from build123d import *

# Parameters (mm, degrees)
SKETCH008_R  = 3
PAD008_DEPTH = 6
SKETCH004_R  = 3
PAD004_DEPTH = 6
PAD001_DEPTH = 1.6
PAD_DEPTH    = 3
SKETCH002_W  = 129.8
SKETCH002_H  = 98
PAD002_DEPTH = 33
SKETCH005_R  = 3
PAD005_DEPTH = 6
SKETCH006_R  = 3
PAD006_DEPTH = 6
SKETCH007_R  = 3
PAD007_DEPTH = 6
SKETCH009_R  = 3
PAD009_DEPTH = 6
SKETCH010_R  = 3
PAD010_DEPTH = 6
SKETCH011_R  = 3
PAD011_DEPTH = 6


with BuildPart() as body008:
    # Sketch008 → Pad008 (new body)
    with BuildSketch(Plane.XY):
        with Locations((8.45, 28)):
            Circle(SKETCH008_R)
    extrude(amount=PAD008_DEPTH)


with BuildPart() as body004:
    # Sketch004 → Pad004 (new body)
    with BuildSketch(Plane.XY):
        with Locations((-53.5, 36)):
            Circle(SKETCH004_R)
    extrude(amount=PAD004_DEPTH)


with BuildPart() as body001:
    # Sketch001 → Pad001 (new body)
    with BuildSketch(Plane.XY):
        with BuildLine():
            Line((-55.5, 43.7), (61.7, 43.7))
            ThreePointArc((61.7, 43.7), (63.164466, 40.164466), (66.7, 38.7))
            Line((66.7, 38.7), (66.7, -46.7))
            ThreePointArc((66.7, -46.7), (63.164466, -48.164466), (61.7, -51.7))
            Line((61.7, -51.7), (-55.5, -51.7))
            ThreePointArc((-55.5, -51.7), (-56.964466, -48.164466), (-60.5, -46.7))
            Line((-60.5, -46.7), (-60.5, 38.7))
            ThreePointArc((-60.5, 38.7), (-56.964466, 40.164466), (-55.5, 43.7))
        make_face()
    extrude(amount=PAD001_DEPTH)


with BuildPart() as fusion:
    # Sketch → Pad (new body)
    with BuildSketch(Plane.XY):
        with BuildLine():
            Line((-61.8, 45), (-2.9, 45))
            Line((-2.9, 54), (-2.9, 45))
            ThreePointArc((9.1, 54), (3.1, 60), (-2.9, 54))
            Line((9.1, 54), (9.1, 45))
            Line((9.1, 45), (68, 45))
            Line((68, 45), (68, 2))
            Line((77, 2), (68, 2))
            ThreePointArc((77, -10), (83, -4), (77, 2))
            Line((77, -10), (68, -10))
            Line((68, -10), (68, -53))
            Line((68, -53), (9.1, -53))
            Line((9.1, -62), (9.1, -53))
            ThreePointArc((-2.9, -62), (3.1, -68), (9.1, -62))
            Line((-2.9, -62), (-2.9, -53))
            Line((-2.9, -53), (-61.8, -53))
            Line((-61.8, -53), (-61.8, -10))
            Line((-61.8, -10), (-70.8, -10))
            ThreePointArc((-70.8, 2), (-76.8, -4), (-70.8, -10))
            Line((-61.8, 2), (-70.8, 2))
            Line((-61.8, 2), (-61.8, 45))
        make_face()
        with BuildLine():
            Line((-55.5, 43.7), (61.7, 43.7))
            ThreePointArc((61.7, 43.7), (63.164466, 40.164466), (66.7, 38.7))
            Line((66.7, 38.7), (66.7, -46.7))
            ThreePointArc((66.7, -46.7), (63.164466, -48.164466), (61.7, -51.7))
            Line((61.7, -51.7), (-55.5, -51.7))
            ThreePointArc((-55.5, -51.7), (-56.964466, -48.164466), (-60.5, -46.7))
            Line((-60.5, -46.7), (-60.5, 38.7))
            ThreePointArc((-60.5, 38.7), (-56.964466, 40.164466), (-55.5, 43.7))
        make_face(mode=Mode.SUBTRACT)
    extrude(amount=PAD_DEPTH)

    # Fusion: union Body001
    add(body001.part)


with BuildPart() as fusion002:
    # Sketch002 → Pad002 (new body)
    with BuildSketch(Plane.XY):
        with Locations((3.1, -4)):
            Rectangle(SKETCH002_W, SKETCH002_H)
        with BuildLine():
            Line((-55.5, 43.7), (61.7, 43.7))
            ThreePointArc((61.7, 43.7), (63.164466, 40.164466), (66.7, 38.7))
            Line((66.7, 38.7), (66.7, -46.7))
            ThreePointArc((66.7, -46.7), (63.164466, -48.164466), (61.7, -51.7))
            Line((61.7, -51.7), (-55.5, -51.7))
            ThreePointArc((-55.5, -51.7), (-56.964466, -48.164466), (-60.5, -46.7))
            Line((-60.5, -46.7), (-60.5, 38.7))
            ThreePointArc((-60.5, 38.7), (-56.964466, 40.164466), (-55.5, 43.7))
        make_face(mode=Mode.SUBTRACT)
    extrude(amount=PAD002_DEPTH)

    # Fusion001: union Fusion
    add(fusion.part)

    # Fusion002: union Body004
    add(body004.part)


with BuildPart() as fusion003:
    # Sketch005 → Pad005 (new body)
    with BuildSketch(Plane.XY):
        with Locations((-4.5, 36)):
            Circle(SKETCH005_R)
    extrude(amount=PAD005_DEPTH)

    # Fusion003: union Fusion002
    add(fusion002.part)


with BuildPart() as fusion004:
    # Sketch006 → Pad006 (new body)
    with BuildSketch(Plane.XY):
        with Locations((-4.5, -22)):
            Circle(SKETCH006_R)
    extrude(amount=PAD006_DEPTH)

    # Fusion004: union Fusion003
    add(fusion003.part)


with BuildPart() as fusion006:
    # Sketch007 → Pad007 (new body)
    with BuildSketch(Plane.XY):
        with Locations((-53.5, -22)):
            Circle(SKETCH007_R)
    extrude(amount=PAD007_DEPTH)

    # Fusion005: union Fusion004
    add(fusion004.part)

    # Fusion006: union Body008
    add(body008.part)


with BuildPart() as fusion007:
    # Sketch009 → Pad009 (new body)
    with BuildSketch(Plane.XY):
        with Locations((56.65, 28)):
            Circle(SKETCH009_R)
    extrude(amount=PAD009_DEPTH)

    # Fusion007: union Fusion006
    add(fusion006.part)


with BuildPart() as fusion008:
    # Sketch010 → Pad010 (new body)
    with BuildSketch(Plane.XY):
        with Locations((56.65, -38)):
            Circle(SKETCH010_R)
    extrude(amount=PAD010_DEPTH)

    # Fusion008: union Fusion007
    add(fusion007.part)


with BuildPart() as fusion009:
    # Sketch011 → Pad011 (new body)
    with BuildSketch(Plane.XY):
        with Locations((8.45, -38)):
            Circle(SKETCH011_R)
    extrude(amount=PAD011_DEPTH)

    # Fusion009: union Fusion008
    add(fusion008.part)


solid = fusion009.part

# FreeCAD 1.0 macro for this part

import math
import FreeCAD as App
import Part
import Sketcher

V = App.Vector

doc = App.newDocument("Part")
body = doc.addObject("PartDesign::Body", "Body")

# Sketch on XY plane
sketch1 = doc.addObject("Sketcher::SketchObject", "Sketch")
body.addObject(sketch1)
sketch1.AttachmentSupport = (doc.XY_Plane, [""])
sketch1.MapMode = "FlatFace"
sketch1.addGeometry(Part.Circle(V(8.45, 28, 0), V(0, 0, 1), 3), False)
sketch1.addConstraint(Sketcher.Constraint("Diameter", 0, 6.0))
sketch1.addConstraint(Sketcher.Constraint("DistanceY", -1, 1, 0, 3, 28.0))
sketch1.addConstraint(Sketcher.Constraint("DistanceX", -1, 1, 0, 3, 8.45))
pad1 = doc.addObject("PartDesign::Pad", "Pad")
body.addObject(pad1)
pad1.Profile = sketch1
pad1.Length = 6
body2 = doc.addObject("PartDesign::Body", "Body001")

# Sketch on XY plane
sketch2 = doc.addObject("Sketcher::SketchObject", "Sketch001")
body2.addObject(sketch2)
sketch2.AttachmentSupport = (doc.getObject("XY_Plane001"), [""])
sketch2.MapMode = "FlatFace"
sketch2.addGeometry(Part.Circle(V(-53.5, 36, 0), V(0, 0, 1), 3), False)
sketch2.addConstraint(Sketcher.Constraint("Diameter", 0, 6.0))
sketch2.addConstraint(Sketcher.Constraint("DistanceY", -1, 1, 0, 3, 36.0))
sketch2.addConstraint(Sketcher.Constraint("DistanceX", 0, 3, -1, 1, 53.5))
pad2 = doc.addObject("PartDesign::Pad", "Pad001")
body2.addObject(pad2)
pad2.Profile = sketch2
pad2.Length = 6
body3 = doc.addObject("PartDesign::Body", "Body002")

# Sketch on XY plane
sketch3 = doc.addObject("Sketcher::SketchObject", "Sketch002")
body3.addObject(sketch3)
sketch3.AttachmentSupport = (doc.getObject("XY_Plane002"), [""])
sketch3.MapMode = "FlatFace"
sketch3.addGeometry(Part.LineSegment(V(61.7, 43.7, 0), V(-55.5, 43.7, 0)), False)
sketch3.addGeometry(Part.ArcOfCircle(Part.Circle(V(-60.5, 43.7, 0), V(0, 0, 1), 5), math.radians(-90.000004), math.radians(0.000004)), False)
sketch3.addGeometry(Part.LineSegment(V(-60.5, 38.7, 0), V(-60.5, -46.7, 0)), False)
sketch3.addGeometry(Part.ArcOfCircle(Part.Circle(V(-60.5, -51.7, 0), V(0, 0, 1), 5), math.radians(-0.000004), math.radians(90.000004)), False)
sketch3.addGeometry(Part.LineSegment(V(-55.5, -51.7, 0), V(61.7, -51.7, 0)), False)
sketch3.addGeometry(Part.ArcOfCircle(Part.Circle(V(66.7, -51.7, 0), V(0, 0, 1), 5), math.radians(89.999996), math.radians(180.000004)), False)
sketch3.addGeometry(Part.LineSegment(V(66.7, -46.7, 0), V(66.7, 38.7, 0)), False)
sketch3.addGeometry(Part.ArcOfCircle(Part.Circle(V(66.7, 43.7, 0), V(0, 0, 1), 5), math.radians(179.999996), math.radians(270.000004)), False)
sketch3.addConstraint(Sketcher.Constraint("Coincident", 0, 2, 1, 2))
sketch3.addConstraint(Sketcher.Constraint("Coincident", 1, 1, 2, 1))
sketch3.addConstraint(Sketcher.Constraint("Coincident", 2, 2, 3, 2))
sketch3.addConstraint(Sketcher.Constraint("Coincident", 3, 1, 4, 1))
sketch3.addConstraint(Sketcher.Constraint("Coincident", 4, 2, 5, 2))
sketch3.addConstraint(Sketcher.Constraint("Coincident", 5, 1, 6, 1))
sketch3.addConstraint(Sketcher.Constraint("Coincident", 6, 2, 7, 2))
sketch3.addConstraint(Sketcher.Constraint("Coincident", 7, 1, 0, 1))
sketch3.addConstraint(Sketcher.Constraint("Horizontal", 0))
sketch3.addConstraint(Sketcher.Constraint("Vertical", 2))
sketch3.addConstraint(Sketcher.Constraint("Horizontal", 4))
sketch3.addConstraint(Sketcher.Constraint("Vertical", 6))
sketch3.addConstraint(Sketcher.Constraint("Equal", 1, 3))
sketch3.addConstraint(Sketcher.Constraint("Equal", 3, 5))
sketch3.addConstraint(Sketcher.Constraint("Equal", 5, 7))
sketch3.addConstraint(Sketcher.Constraint("Horizontal", 3, 3, 5, 3))
sketch3.addConstraint(Sketcher.Constraint("Horizontal", 1, 3, 7, 3))
sketch3.addConstraint(Sketcher.Constraint("Horizontal", 7, 3, 0, 2))
sketch3.addConstraint(Sketcher.Constraint("Horizontal", 5, 3, 3, 1))
sketch3.addConstraint(Sketcher.Constraint("Vertical", 1, 3, 3, 3))
sketch3.addConstraint(Sketcher.Constraint("Vertical", 5, 3, 7, 3))
sketch3.addConstraint(Sketcher.Constraint("Vertical", 3, 3, 1, 1))
sketch3.addConstraint(Sketcher.Constraint("Vertical", 7, 3, 5, 1))
sketch3.addConstraint(Sketcher.Constraint("Radius", 1, 5.0))
sketch3.addConstraint(Sketcher.Constraint("DistanceX", 0, 2, 0, 1, 117.2))
sketch3.addConstraint(Sketcher.Constraint("DistanceY", 2, 2, 2, 1, 85.4))
sketch3.addConstraint(Sketcher.Constraint("DistanceX", 1, 3, -1, 1, 60.5))
sketch3.addConstraint(Sketcher.Constraint("DistanceY", -1, 1, 1, 3, 43.7))
pad3 = doc.addObject("PartDesign::Pad", "Pad002")
body3.addObject(pad3)
pad3.Profile = sketch3
pad3.Length = 1.6
body4 = doc.addObject("PartDesign::Body", "Body003")

# Sketch on XY plane
sketch4 = doc.addObject("Sketcher::SketchObject", "Sketch003")
body4.addObject(sketch4)
sketch4.AttachmentSupport = (doc.getObject("XY_Plane003"), [""])
sketch4.MapMode = "FlatFace"
sketch4.addGeometry(Part.LineSegment(V(-2.9, 45, 0), V(-61.8, 45, 0)), False)
sketch4.addGeometry(Part.LineSegment(V(-61.8, 45, 0), V(-61.8, 2, 0)), False)
sketch4.addGeometry(Part.LineSegment(V(-61.8, 2, 0), V(-70.8, 2, 0)), False)
sketch4.addGeometry(Part.ArcOfCircle(Part.Circle(V(-70.8, -4, 0), V(0, 0, 1), 6), math.radians(90), math.radians(270)), False)
sketch4.addGeometry(Part.LineSegment(V(-70.8, -10, 0), V(-61.8, -10, 0)), False)
sketch4.addGeometry(Part.LineSegment(V(-61.8, -10, 0), V(-61.8, -53, 0)), False)
sketch4.addGeometry(Part.LineSegment(V(-61.8, -53, 0), V(-2.9, -53, 0)), False)
sketch4.addGeometry(Part.LineSegment(V(-2.9, -53, 0), V(-2.9, -62, 0)), False)
sketch4.addGeometry(Part.ArcOfCircle(Part.Circle(V(3.1, -62, 0), V(0, 0, 1), 6), math.radians(180), math.radians(360)), False)
sketch4.addGeometry(Part.LineSegment(V(9.1, -62, 0), V(9.1, -53, 0)), False)
sketch4.addGeometry(Part.LineSegment(V(9.1, -53, 0), V(68, -53, 0)), False)
sketch4.addGeometry(Part.LineSegment(V(68, -53, 0), V(68, -10, 0)), False)
sketch4.addGeometry(Part.LineSegment(V(68, -10, 0), V(77, -10, 0)), False)
sketch4.addGeometry(Part.ArcOfCircle(Part.Circle(V(77, -4, 0), V(0, 0, 1), 6), math.radians(-90), math.radians(90)), False)
sketch4.addGeometry(Part.LineSegment(V(77, 2, 0), V(68, 2, 0)), False)
sketch4.addGeometry(Part.LineSegment(V(68, 2, 0), V(68, 45, 0)), False)
sketch4.addGeometry(Part.LineSegment(V(68, 45, 0), V(9.1, 45, 0)), False)
sketch4.addGeometry(Part.LineSegment(V(9.1, 45, 0), V(9.1, 54, 0)), False)
sketch4.addGeometry(Part.ArcOfCircle(Part.Circle(V(3.1, 54, 0), V(0, 0, 1), 6), math.radians(0), math.radians(180)), False)
sketch4.addGeometry(Part.LineSegment(V(-2.9, 54, 0), V(-2.9, 45, 0)), False)
sketch4.addGeometry(Part.LineSegment(V(-55.5, 43.7, 0), V(61.7, 43.7, 0)), False)
sketch4.addGeometry(Part.ArcOfCircle(Part.Circle(V(66.7, 43.7, 0), V(0, 0, 1), 5), math.radians(179.999996), math.radians(270.000004)), False)
sketch4.addGeometry(Part.LineSegment(V(66.7, 38.7, 0), V(66.7, -46.7, 0)), False)
sketch4.addGeometry(Part.ArcOfCircle(Part.Circle(V(66.7, -51.7, 0), V(0, 0, 1), 5), math.radians(89.999996), math.radians(180.000004)), False)
sketch4.addGeometry(Part.LineSegment(V(61.7, -51.7, 0), V(-55.5, -51.7, 0)), False)
sketch4.addGeometry(Part.ArcOfCircle(Part.Circle(V(-60.5, -51.7, 0), V(0, 0, 1), 5), math.radians(-0.000004), math.radians(90.000004)), False)
sketch4.addGeometry(Part.LineSegment(V(-60.5, -46.7, 0), V(-60.5, 38.7, 0)), False)
sketch4.addGeometry(Part.ArcOfCircle(Part.Circle(V(-60.5, 43.7, 0), V(0, 0, 1), 5), math.radians(-90.000004), math.radians(0.000004)), False)
sketch4.addConstraint(Sketcher.Constraint("Coincident", 0, 2, 1, 1))
sketch4.addConstraint(Sketcher.Constraint("Coincident", 1, 2, 2, 1))
sketch4.addConstraint(Sketcher.Constraint("Tangent", 2, 2, 3, 1))
sketch4.addConstraint(Sketcher.Constraint("Tangent", 3, 2, 4, 1))
sketch4.addConstraint(Sketcher.Constraint("Coincident", 4, 2, 5, 1))
sketch4.addConstraint(Sketcher.Constraint("Coincident", 5, 2, 6, 1))
sketch4.addConstraint(Sketcher.Constraint("Coincident", 6, 2, 7, 1))
sketch4.addConstraint(Sketcher.Constraint("Tangent", 7, 2, 8, 1))
sketch4.addConstraint(Sketcher.Constraint("Tangent", 8, 2, 9, 1))
sketch4.addConstraint(Sketcher.Constraint("Coincident", 9, 2, 10, 1))
sketch4.addConstraint(Sketcher.Constraint("Coincident", 10, 2, 11, 1))
sketch4.addConstraint(Sketcher.Constraint("Coincident", 11, 2, 12, 1))
sketch4.addConstraint(Sketcher.Constraint("Tangent", 12, 2, 13, 1))
sketch4.addConstraint(Sketcher.Constraint("Tangent", 13, 2, 14, 1))
sketch4.addConstraint(Sketcher.Constraint("Coincident", 14, 2, 15, 1))
sketch4.addConstraint(Sketcher.Constraint("Coincident", 15, 2, 16, 1))
sketch4.addConstraint(Sketcher.Constraint("Coincident", 16, 2, 17, 1))
sketch4.addConstraint(Sketcher.Constraint("Tangent", 17, 2, 18, 1))
sketch4.addConstraint(Sketcher.Constraint("Tangent", 18, 2, 19, 1))
sketch4.addConstraint(Sketcher.Constraint("Coincident", 19, 2, 0, 1))
sketch4.addConstraint(Sketcher.Constraint("Coincident", 20, 2, 21, 1))
sketch4.addConstraint(Sketcher.Constraint("Coincident", 21, 2, 22, 1))
sketch4.addConstraint(Sketcher.Constraint("Coincident", 22, 2, 23, 1))
sketch4.addConstraint(Sketcher.Constraint("Coincident", 23, 2, 24, 1))
sketch4.addConstraint(Sketcher.Constraint("Coincident", 24, 2, 25, 1))
sketch4.addConstraint(Sketcher.Constraint("Coincident", 25, 2, 26, 1))
sketch4.addConstraint(Sketcher.Constraint("Coincident", 26, 2, 27, 1))
sketch4.addConstraint(Sketcher.Constraint("Coincident", 27, 2, 20, 1))
sketch4.addConstraint(Sketcher.Constraint("Horizontal", 0))
sketch4.addConstraint(Sketcher.Constraint("Vertical", 1))
sketch4.addConstraint(Sketcher.Constraint("Horizontal", 2))
sketch4.addConstraint(Sketcher.Constraint("Horizontal", 4))
sketch4.addConstraint(Sketcher.Constraint("Vertical", 5))
sketch4.addConstraint(Sketcher.Constraint("Horizontal", 6))
sketch4.addConstraint(Sketcher.Constraint("Vertical", 7))
sketch4.addConstraint(Sketcher.Constraint("Vertical", 9))
sketch4.addConstraint(Sketcher.Constraint("Horizontal", 10))
sketch4.addConstraint(Sketcher.Constraint("Vertical", 11))
sketch4.addConstraint(Sketcher.Constraint("Horizontal", 12))
sketch4.addConstraint(Sketcher.Constraint("Horizontal", 14))
sketch4.addConstraint(Sketcher.Constraint("Vertical", 15))
sketch4.addConstraint(Sketcher.Constraint("Horizontal", 16))
sketch4.addConstraint(Sketcher.Constraint("Vertical", 17))
sketch4.addConstraint(Sketcher.Constraint("Vertical", 19))
sketch4.addConstraint(Sketcher.Constraint("Horizontal", 20))
sketch4.addConstraint(Sketcher.Constraint("Vertical", 22))
sketch4.addConstraint(Sketcher.Constraint("Horizontal", 24))
sketch4.addConstraint(Sketcher.Constraint("Vertical", 26))
sketch4.addConstraint(Sketcher.Constraint("Equal", 3, 8))
sketch4.addConstraint(Sketcher.Constraint("Equal", 8, 13))
sketch4.addConstraint(Sketcher.Constraint("Equal", 13, 18))
sketch4.addConstraint(Sketcher.Constraint("Equal", 21, 23))
sketch4.addConstraint(Sketcher.Constraint("Equal", 23, 25))
sketch4.addConstraint(Sketcher.Constraint("Equal", 25, 27))
sketch4.addConstraint(Sketcher.Constraint("Horizontal", 3, 3, 13, 3))
sketch4.addConstraint(Sketcher.Constraint("Horizontal", 23, 3, 25, 3))
sketch4.addConstraint(Sketcher.Constraint("Horizontal", 21, 3, 27, 3))
sketch4.addConstraint(Sketcher.Constraint("Horizontal", 6, 2, 9, 2))
sketch4.addConstraint(Sketcher.Constraint("Horizontal", 0, 2, 15, 2))
sketch4.addConstraint(Sketcher.Constraint("Horizontal", 27, 3, 20, 2))
sketch4.addConstraint(Sketcher.Constraint("Horizontal", 25, 3, 23, 2))
sketch4.addConstraint(Sketcher.Constraint("Vertical", 8, 3, 18, 3))
sketch4.addConstraint(Sketcher.Constraint("Vertical", 21, 3, 23, 3))
sketch4.addConstraint(Sketcher.Constraint("Vertical", 25, 3, 27, 3))
sketch4.addConstraint(Sketcher.Constraint("Vertical", 1, 2, 4, 2))
sketch4.addConstraint(Sketcher.Constraint("Vertical", 11, 2, 14, 2))
sketch4.addConstraint(Sketcher.Constraint("Vertical", 23, 3, 21, 2))
sketch4.addConstraint(Sketcher.Constraint("Vertical", 27, 3, 25, 2))
sketch4.addConstraint(Sketcher.Constraint("Equal", 6, 10))
sketch4.addConstraint(Sketcher.Constraint("Equal", 4, 12))
sketch4.addConstraint(Sketcher.Constraint("Equal", 1, 5))
sketch4.addConstraint(Sketcher.Constraint("Equal", 14, 7))
sketch4.addConstraint(Sketcher.Constraint("Equal", 9, 17))
sketch4.addConstraint(Sketcher.Constraint("Radius", 3, 6.0))
sketch4.addConstraint(Sketcher.Constraint("Radius", 21, 5.0))
sketch4.addConstraint(Sketcher.Constraint("DistanceX", 2, 2, 2, 1, 9.0))
sketch4.addConstraint(Sketcher.Constraint("DistanceY", 1, 2, 1, 1, 43.0))
sketch4.addConstraint(Sketcher.Constraint("DistanceX", 0, 2, 0, 1, 58.9))
sketch4.addConstraint(Sketcher.Constraint("DistanceX", 20, 1, 20, 2, 117.2))
sketch4.addConstraint(Sketcher.Constraint("DistanceY", 22, 2, 22, 1, 85.4))
sketch4.addConstraint(Sketcher.Constraint("DistanceY", 3, 3, -1, 1, 4.0))
sketch4.addConstraint(Sketcher.Constraint("DistanceX", -1, 1, 13, 3, 77.0))
sketch4.addConstraint(Sketcher.Constraint("DistanceX", -1, 1, 21, 3, 66.7))
sketch4.addConstraint(Sketcher.Constraint("DistanceY", -1, 1, 21, 3, 43.7))
pad4 = doc.addObject("PartDesign::Pad", "Pad003")
body4.addObject(pad4)
pad4.Profile = sketch4
pad4.Length = 3
doc.recompute()

boolean = doc.addObject("PartDesign::Boolean", "Boolean")
body4.addObject(boolean)
boolean.Type = "Fuse"
boolean.addObjects([body3])
body5 = doc.addObject("PartDesign::Body", "Body004")

# Sketch on XY plane
sketch5 = doc.addObject("Sketcher::SketchObject", "Sketch004")
body5.addObject(sketch5)
sketch5.AttachmentSupport = (doc.getObject("XY_Plane004"), [""])
sketch5.MapMode = "FlatFace"
sketch5.addGeometry(Part.LineSegment(V(-61.8, 45, 0), V(-61.8, -53, 0)), False)
sketch5.addGeometry(Part.LineSegment(V(-61.8, -53, 0), V(68, -53, 0)), False)
sketch5.addGeometry(Part.LineSegment(V(68, -53, 0), V(68, 45, 0)), False)
sketch5.addGeometry(Part.LineSegment(V(68, 45, 0), V(-61.8, 45, 0)), False)
sketch5.addGeometry(Part.ArcOfCircle(Part.Circle(V(-60.5, 43.7, 0), V(0, 0, 1), 5), math.radians(-90.000004), math.radians(0.000004)), False)
sketch5.addGeometry(Part.LineSegment(V(-55.5, 43.7, 0), V(61.7, 43.7, 0)), False)
sketch5.addGeometry(Part.ArcOfCircle(Part.Circle(V(66.7, 43.7, 0), V(0, 0, 1), 5), math.radians(179.999996), math.radians(270.000004)), False)
sketch5.addGeometry(Part.LineSegment(V(66.7, 38.7, 0), V(66.7, -46.7, 0)), False)
sketch5.addGeometry(Part.ArcOfCircle(Part.Circle(V(66.7, -51.7, 0), V(0, 0, 1), 5), math.radians(89.999996), math.radians(180.000004)), False)
sketch5.addGeometry(Part.LineSegment(V(61.7, -51.7, 0), V(-55.5, -51.7, 0)), False)
sketch5.addGeometry(Part.ArcOfCircle(Part.Circle(V(-60.5, -51.7, 0), V(0, 0, 1), 5), math.radians(-0.000004), math.radians(90.000004)), False)
sketch5.addGeometry(Part.LineSegment(V(-60.5, -46.7, 0), V(-60.5, 38.7, 0)), False)
sketch5.addConstraint(Sketcher.Constraint("Coincident", 0, 2, 1, 1))
sketch5.addConstraint(Sketcher.Constraint("Coincident", 1, 2, 2, 1))
sketch5.addConstraint(Sketcher.Constraint("Coincident", 2, 2, 3, 1))
sketch5.addConstraint(Sketcher.Constraint("Coincident", 3, 2, 0, 1))
sketch5.addConstraint(Sketcher.Constraint("Coincident", 4, 2, 5, 1))
sketch5.addConstraint(Sketcher.Constraint("Coincident", 5, 2, 6, 1))
sketch5.addConstraint(Sketcher.Constraint("Coincident", 6, 2, 7, 1))
sketch5.addConstraint(Sketcher.Constraint("Coincident", 7, 2, 8, 1))
sketch5.addConstraint(Sketcher.Constraint("Coincident", 8, 2, 9, 1))
sketch5.addConstraint(Sketcher.Constraint("Coincident", 9, 2, 10, 1))
sketch5.addConstraint(Sketcher.Constraint("Coincident", 10, 2, 11, 1))
sketch5.addConstraint(Sketcher.Constraint("Coincident", 11, 2, 4, 1))
sketch5.addConstraint(Sketcher.Constraint("Vertical", 0))
sketch5.addConstraint(Sketcher.Constraint("Horizontal", 1))
sketch5.addConstraint(Sketcher.Constraint("Vertical", 2))
sketch5.addConstraint(Sketcher.Constraint("Horizontal", 3))
sketch5.addConstraint(Sketcher.Constraint("Horizontal", 5))
sketch5.addConstraint(Sketcher.Constraint("Vertical", 7))
sketch5.addConstraint(Sketcher.Constraint("Horizontal", 9))
sketch5.addConstraint(Sketcher.Constraint("Vertical", 11))
sketch5.addConstraint(Sketcher.Constraint("Equal", 4, 6))
sketch5.addConstraint(Sketcher.Constraint("Equal", 6, 8))
sketch5.addConstraint(Sketcher.Constraint("Equal", 8, 10))
sketch5.addConstraint(Sketcher.Constraint("Horizontal", 4, 3, 6, 3))
sketch5.addConstraint(Sketcher.Constraint("Horizontal", 8, 3, 10, 3))
sketch5.addConstraint(Sketcher.Constraint("Horizontal", 6, 3, 4, 2))
sketch5.addConstraint(Sketcher.Constraint("Horizontal", 10, 3, 8, 2))
sketch5.addConstraint(Sketcher.Constraint("Vertical", 6, 3, 8, 3))
sketch5.addConstraint(Sketcher.Constraint("Vertical", 4, 3, 10, 3))
sketch5.addConstraint(Sketcher.Constraint("Vertical", 8, 3, 6, 2))
sketch5.addConstraint(Sketcher.Constraint("Vertical", 4, 3, 10, 2))
sketch5.addConstraint(Sketcher.Constraint("Radius", 4, 5.0))
sketch5.addConstraint(Sketcher.Constraint("DistanceY", 0, 2, 0, 1, 98.0))
sketch5.addConstraint(Sketcher.Constraint("DistanceX", 1, 1, 1, 2, 129.8))
sketch5.addConstraint(Sketcher.Constraint("DistanceX", 5, 1, 5, 2, 117.2))
sketch5.addConstraint(Sketcher.Constraint("DistanceY", 7, 2, 7, 1, 85.4))
sketch5.addConstraint(Sketcher.Constraint("DistanceY", 0, 2, -1, 1, 53.0))
sketch5.addConstraint(Sketcher.Constraint("DistanceX", -1, 1, 1, 2, 68.0))
sketch5.addConstraint(Sketcher.Constraint("DistanceX", 4, 3, -1, 1, 60.5))
sketch5.addConstraint(Sketcher.Constraint("DistanceY", -1, 1, 4, 3, 43.7))
pad5 = doc.addObject("PartDesign::Pad", "Pad004")
body5.addObject(pad5)
pad5.Profile = sketch5
pad5.Length = 33
doc.recompute()

boolean2 = doc.addObject("PartDesign::Boolean", "Boolean001")
body5.addObject(boolean2)
boolean2.Type = "Fuse"
boolean2.addObjects([body4])
doc.recompute()

boolean3 = doc.addObject("PartDesign::Boolean", "Boolean002")
body5.addObject(boolean3)
boolean3.Type = "Fuse"
boolean3.addObjects([body2])
body6 = doc.addObject("PartDesign::Body", "Body005")

# Sketch on XY plane
sketch6 = doc.addObject("Sketcher::SketchObject", "Sketch005")
body6.addObject(sketch6)
sketch6.AttachmentSupport = (doc.getObject("XY_Plane005"), [""])
sketch6.MapMode = "FlatFace"
sketch6.addGeometry(Part.Circle(V(-4.5, 36, 0), V(0, 0, 1), 3), False)
sketch6.addConstraint(Sketcher.Constraint("Diameter", 0, 6.0))
sketch6.addConstraint(Sketcher.Constraint("DistanceY", -1, 1, 0, 3, 36.0))
sketch6.addConstraint(Sketcher.Constraint("DistanceX", 0, 3, -1, 1, 4.5))
pad6 = doc.addObject("PartDesign::Pad", "Pad005")
body6.addObject(pad6)
pad6.Profile = sketch6
pad6.Length = 6
doc.recompute()

boolean4 = doc.addObject("PartDesign::Boolean", "Boolean003")
body6.addObject(boolean4)
boolean4.Type = "Fuse"
boolean4.addObjects([body5])
body7 = doc.addObject("PartDesign::Body", "Body006")

# Sketch on XY plane
sketch7 = doc.addObject("Sketcher::SketchObject", "Sketch006")
body7.addObject(sketch7)
sketch7.AttachmentSupport = (doc.getObject("XY_Plane006"), [""])
sketch7.MapMode = "FlatFace"
sketch7.addGeometry(Part.Circle(V(-4.5, -22, 0), V(0, 0, 1), 3), False)
sketch7.addConstraint(Sketcher.Constraint("Diameter", 0, 6.0))
sketch7.addConstraint(Sketcher.Constraint("DistanceY", 0, 3, -1, 1, 22.0))
sketch7.addConstraint(Sketcher.Constraint("DistanceX", 0, 3, -1, 1, 4.5))
pad7 = doc.addObject("PartDesign::Pad", "Pad006")
body7.addObject(pad7)
pad7.Profile = sketch7
pad7.Length = 6
doc.recompute()

boolean5 = doc.addObject("PartDesign::Boolean", "Boolean004")
body7.addObject(boolean5)
boolean5.Type = "Fuse"
boolean5.addObjects([body6])
body8 = doc.addObject("PartDesign::Body", "Body007")

# Sketch on XY plane
sketch8 = doc.addObject("Sketcher::SketchObject", "Sketch007")
body8.addObject(sketch8)
sketch8.AttachmentSupport = (doc.getObject("XY_Plane007"), [""])
sketch8.MapMode = "FlatFace"
sketch8.addGeometry(Part.Circle(V(-53.5, -22, 0), V(0, 0, 1), 3), False)
sketch8.addConstraint(Sketcher.Constraint("Diameter", 0, 6.0))
sketch8.addConstraint(Sketcher.Constraint("DistanceY", 0, 3, -1, 1, 22.0))
sketch8.addConstraint(Sketcher.Constraint("DistanceX", 0, 3, -1, 1, 53.5))
pad8 = doc.addObject("PartDesign::Pad", "Pad007")
body8.addObject(pad8)
pad8.Profile = sketch8
pad8.Length = 6
doc.recompute()

boolean6 = doc.addObject("PartDesign::Boolean", "Boolean005")
body8.addObject(boolean6)
boolean6.Type = "Fuse"
boolean6.addObjects([body7])
doc.recompute()

boolean7 = doc.addObject("PartDesign::Boolean", "Boolean006")
body8.addObject(boolean7)
boolean7.Type = "Fuse"
boolean7.addObjects([body])
body9 = doc.addObject("PartDesign::Body", "Body008")

# Sketch on XY plane
sketch9 = doc.addObject("Sketcher::SketchObject", "Sketch008")
body9.addObject(sketch9)
sketch9.AttachmentSupport = (doc.getObject("XY_Plane008"), [""])
sketch9.MapMode = "FlatFace"
sketch9.addGeometry(Part.Circle(V(56.65, 28, 0), V(0, 0, 1), 3), False)
sketch9.addConstraint(Sketcher.Constraint("Diameter", 0, 6.0))
sketch9.addConstraint(Sketcher.Constraint("DistanceY", -1, 1, 0, 3, 28.0))
sketch9.addConstraint(Sketcher.Constraint("DistanceX", -1, 1, 0, 3, 56.65))
pad9 = doc.addObject("PartDesign::Pad", "Pad008")
body9.addObject(pad9)
pad9.Profile = sketch9
pad9.Length = 6
doc.recompute()

boolean8 = doc.addObject("PartDesign::Boolean", "Boolean007")
body9.addObject(boolean8)
boolean8.Type = "Fuse"
boolean8.addObjects([body8])
body10 = doc.addObject("PartDesign::Body", "Body009")

# Sketch on XY plane
sketch10 = doc.addObject("Sketcher::SketchObject", "Sketch009")
body10.addObject(sketch10)
sketch10.AttachmentSupport = (doc.getObject("XY_Plane009"), [""])
sketch10.MapMode = "FlatFace"
sketch10.addGeometry(Part.Circle(V(56.65, -38, 0), V(0, 0, 1), 3), False)
sketch10.addConstraint(Sketcher.Constraint("Diameter", 0, 6.0))
sketch10.addConstraint(Sketcher.Constraint("DistanceY", 0, 3, -1, 1, 38.0))
sketch10.addConstraint(Sketcher.Constraint("DistanceX", -1, 1, 0, 3, 56.65))
pad10 = doc.addObject("PartDesign::Pad", "Pad009")
body10.addObject(pad10)
pad10.Profile = sketch10
pad10.Length = 6
doc.recompute()

boolean9 = doc.addObject("PartDesign::Boolean", "Boolean008")
body10.addObject(boolean9)
boolean9.Type = "Fuse"
boolean9.addObjects([body9])
body11 = doc.addObject("PartDesign::Body", "Body010")

# Sketch on XY plane
sketch11 = doc.addObject("Sketcher::SketchObject", "Sketch010")
body11.addObject(sketch11)
sketch11.AttachmentSupport = (doc.getObject("XY_Plane010"), [""])
sketch11.MapMode = "FlatFace"
sketch11.addGeometry(Part.Circle(V(8.45, -38, 0), V(0, 0, 1), 3), False)
sketch11.addConstraint(Sketcher.Constraint("Diameter", 0, 6.0))
sketch11.addConstraint(Sketcher.Constraint("DistanceY", 0, 3, -1, 1, 38.0))
sketch11.addConstraint(Sketcher.Constraint("DistanceX", -1, 1, 0, 3, 8.45))
pad11 = doc.addObject("PartDesign::Pad", "Pad010")
body11.addObject(pad11)
pad11.Profile = sketch11
pad11.Length = 6
doc.recompute()

boolean10 = doc.addObject("PartDesign::Boolean", "Boolean009")
body11.addObject(boolean10)
boolean10.Type = "Fuse"
boolean10.addObjects([body10])

doc.recompute()
